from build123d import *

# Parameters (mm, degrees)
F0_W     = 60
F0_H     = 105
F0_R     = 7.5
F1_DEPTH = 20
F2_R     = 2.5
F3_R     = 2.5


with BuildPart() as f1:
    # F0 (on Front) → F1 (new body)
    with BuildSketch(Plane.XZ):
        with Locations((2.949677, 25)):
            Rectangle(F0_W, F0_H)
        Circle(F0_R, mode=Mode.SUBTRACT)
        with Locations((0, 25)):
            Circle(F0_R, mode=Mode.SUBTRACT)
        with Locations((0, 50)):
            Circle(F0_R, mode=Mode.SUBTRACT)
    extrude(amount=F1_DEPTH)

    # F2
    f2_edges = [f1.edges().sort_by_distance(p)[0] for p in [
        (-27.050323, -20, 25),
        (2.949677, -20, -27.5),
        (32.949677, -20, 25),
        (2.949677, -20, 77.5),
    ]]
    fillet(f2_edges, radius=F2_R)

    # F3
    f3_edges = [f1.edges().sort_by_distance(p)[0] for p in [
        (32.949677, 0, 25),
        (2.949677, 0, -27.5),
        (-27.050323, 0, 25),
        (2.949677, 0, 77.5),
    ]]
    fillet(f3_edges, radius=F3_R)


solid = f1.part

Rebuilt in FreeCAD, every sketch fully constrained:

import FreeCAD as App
import Part
import Sketcher
from FreeCAD import Vector
Q = App.Units.Quantity


def edges_at(feature, points):
    """Names of the edges that pass closest to the given points."""
    edges = feature.Shape.Edges
    near = lambda p: min(range(len(edges)), key=lambda i: edges[i].distToShape(Part.Vertex(*p))[0])
    return sorted({f"Edge{near(p) + 1}" for p in points})

doc = App.newDocument("Part")
body = doc.addObject("PartDesign::Body", "Body")

# Sketch on XZ plane
sketch1 = doc.addObject("Sketcher::SketchObject", "Sketch")
body.addObject(sketch1)
sketch1.AttachmentSupport = (doc.XZ_Plane, [""])
sketch1.MapMode = "FlatFace"
sketch1.addGeometry(Part.LineSegment(Vector(-27, 78, 0), Vector(-27, -28, 0)), False)
sketch1.addGeometry(Part.LineSegment(Vector(-27, -28, 0), Vector(33, -28, 0)), False)
sketch1.addGeometry(Part.LineSegment(Vector(33, -28, 0), Vector(33, 78, 0)), False)
sketch1.addGeometry(Part.LineSegment(Vector(33, 78, 0), Vector(-27, 78, 0)), False)
sketch1.addGeometry(Part.Circle(Vector(0, 0, 0), Vector(0, 0, 1), 8), False)
sketch1.addGeometry(Part.Circle(Vector(0, 25, 0), Vector(0, 0, 1), 8), False)
sketch1.addGeometry(Part.Circle(Vector(0, 50, 0), Vector(0, 0, 1), 8), False)
sketch1.addConstraint(Sketcher.Constraint("Coincident", 0, 2, 1, 1))
sketch1.addConstraint(Sketcher.Constraint("Coincident", 1, 2, 2, 1))
sketch1.addConstraint(Sketcher.Constraint("Coincident", 2, 2, 3, 1))
sketch1.addConstraint(Sketcher.Constraint("Coincident", 3, 2, 0, 1))
sketch1.addConstraint(Sketcher.Constraint("Vertical", 0))
sketch1.addConstraint(Sketcher.Constraint("Horizontal", 1))
sketch1.addConstraint(Sketcher.Constraint("Vertical", 2))
sketch1.addConstraint(Sketcher.Constraint("Horizontal", 3))
sketch1.addConstraint(Sketcher.Constraint("Coincident", 4, 3, -1, 1))
sketch1.addConstraint(Sketcher.Constraint("Equal", 4, 5))
sketch1.addConstraint(Sketcher.Constraint("Equal", 5, 6))
sketch1.addConstraint(Sketcher.Constraint("PointOnObject", 5, 3, -2))
sketch1.addConstraint(Sketcher.Constraint("PointOnObject", 6, 3, -2))
sketch1.addConstraint(Sketcher.Constraint("Diameter", 4, Q("15 mm")))
sketch1.addConstraint(Sketcher.Constraint("DistanceX", 1, 1, 1, 2, Q("60 mm")))
sketch1.addConstraint(Sketcher.Constraint("DistanceY", 0, 2, 0, 1, Q("105 mm")))
sketch1.addConstraint(Sketcher.Constraint("DistanceY", -1, 1, 5, 3, Q("25 mm")))
sketch1.addConstraint(Sketcher.Constraint("DistanceY", -1, 1, 6, 3, Q("50 mm")))
sketch1.addConstraint(Sketcher.Constraint("DistanceY", 0, 2, -1, 1, Q("27.5 mm")))
sketch1.addConstraint(Sketcher.Constraint("DistanceX", 0, 2, -1, 1, Q("27.050323 mm")))
pad1 = doc.addObject("PartDesign::Pad", "Pad")
body.addObject(pad1)
pad1.Profile = sketch1
pad1.Length = 20
doc.recompute()

fillet = doc.addObject("PartDesign::Fillet", "Fillet")
body.addObject(fillet)
fillet.Base = (pad1, edges_at(pad1, [
    (-27.05, -20, 25),
    (2.95, -20, -27.5),
    (32.95, -20, 25),
    (2.95, -20, 77.5),
]))
fillet.Radius = 2.5
doc.recompute()

fillet2 = doc.addObject("PartDesign::Fillet", "Fillet001")
body.addObject(fillet2)
fillet2.Base = (fillet, edges_at(fillet, [
    (32.95, 0, 25),
    (2.95, 0, -27.5),
    (-27.05, 0, 25),
    (2.95, 0, 77.5),
]))
fillet2.Radius = 2.5

doc.recompute()
